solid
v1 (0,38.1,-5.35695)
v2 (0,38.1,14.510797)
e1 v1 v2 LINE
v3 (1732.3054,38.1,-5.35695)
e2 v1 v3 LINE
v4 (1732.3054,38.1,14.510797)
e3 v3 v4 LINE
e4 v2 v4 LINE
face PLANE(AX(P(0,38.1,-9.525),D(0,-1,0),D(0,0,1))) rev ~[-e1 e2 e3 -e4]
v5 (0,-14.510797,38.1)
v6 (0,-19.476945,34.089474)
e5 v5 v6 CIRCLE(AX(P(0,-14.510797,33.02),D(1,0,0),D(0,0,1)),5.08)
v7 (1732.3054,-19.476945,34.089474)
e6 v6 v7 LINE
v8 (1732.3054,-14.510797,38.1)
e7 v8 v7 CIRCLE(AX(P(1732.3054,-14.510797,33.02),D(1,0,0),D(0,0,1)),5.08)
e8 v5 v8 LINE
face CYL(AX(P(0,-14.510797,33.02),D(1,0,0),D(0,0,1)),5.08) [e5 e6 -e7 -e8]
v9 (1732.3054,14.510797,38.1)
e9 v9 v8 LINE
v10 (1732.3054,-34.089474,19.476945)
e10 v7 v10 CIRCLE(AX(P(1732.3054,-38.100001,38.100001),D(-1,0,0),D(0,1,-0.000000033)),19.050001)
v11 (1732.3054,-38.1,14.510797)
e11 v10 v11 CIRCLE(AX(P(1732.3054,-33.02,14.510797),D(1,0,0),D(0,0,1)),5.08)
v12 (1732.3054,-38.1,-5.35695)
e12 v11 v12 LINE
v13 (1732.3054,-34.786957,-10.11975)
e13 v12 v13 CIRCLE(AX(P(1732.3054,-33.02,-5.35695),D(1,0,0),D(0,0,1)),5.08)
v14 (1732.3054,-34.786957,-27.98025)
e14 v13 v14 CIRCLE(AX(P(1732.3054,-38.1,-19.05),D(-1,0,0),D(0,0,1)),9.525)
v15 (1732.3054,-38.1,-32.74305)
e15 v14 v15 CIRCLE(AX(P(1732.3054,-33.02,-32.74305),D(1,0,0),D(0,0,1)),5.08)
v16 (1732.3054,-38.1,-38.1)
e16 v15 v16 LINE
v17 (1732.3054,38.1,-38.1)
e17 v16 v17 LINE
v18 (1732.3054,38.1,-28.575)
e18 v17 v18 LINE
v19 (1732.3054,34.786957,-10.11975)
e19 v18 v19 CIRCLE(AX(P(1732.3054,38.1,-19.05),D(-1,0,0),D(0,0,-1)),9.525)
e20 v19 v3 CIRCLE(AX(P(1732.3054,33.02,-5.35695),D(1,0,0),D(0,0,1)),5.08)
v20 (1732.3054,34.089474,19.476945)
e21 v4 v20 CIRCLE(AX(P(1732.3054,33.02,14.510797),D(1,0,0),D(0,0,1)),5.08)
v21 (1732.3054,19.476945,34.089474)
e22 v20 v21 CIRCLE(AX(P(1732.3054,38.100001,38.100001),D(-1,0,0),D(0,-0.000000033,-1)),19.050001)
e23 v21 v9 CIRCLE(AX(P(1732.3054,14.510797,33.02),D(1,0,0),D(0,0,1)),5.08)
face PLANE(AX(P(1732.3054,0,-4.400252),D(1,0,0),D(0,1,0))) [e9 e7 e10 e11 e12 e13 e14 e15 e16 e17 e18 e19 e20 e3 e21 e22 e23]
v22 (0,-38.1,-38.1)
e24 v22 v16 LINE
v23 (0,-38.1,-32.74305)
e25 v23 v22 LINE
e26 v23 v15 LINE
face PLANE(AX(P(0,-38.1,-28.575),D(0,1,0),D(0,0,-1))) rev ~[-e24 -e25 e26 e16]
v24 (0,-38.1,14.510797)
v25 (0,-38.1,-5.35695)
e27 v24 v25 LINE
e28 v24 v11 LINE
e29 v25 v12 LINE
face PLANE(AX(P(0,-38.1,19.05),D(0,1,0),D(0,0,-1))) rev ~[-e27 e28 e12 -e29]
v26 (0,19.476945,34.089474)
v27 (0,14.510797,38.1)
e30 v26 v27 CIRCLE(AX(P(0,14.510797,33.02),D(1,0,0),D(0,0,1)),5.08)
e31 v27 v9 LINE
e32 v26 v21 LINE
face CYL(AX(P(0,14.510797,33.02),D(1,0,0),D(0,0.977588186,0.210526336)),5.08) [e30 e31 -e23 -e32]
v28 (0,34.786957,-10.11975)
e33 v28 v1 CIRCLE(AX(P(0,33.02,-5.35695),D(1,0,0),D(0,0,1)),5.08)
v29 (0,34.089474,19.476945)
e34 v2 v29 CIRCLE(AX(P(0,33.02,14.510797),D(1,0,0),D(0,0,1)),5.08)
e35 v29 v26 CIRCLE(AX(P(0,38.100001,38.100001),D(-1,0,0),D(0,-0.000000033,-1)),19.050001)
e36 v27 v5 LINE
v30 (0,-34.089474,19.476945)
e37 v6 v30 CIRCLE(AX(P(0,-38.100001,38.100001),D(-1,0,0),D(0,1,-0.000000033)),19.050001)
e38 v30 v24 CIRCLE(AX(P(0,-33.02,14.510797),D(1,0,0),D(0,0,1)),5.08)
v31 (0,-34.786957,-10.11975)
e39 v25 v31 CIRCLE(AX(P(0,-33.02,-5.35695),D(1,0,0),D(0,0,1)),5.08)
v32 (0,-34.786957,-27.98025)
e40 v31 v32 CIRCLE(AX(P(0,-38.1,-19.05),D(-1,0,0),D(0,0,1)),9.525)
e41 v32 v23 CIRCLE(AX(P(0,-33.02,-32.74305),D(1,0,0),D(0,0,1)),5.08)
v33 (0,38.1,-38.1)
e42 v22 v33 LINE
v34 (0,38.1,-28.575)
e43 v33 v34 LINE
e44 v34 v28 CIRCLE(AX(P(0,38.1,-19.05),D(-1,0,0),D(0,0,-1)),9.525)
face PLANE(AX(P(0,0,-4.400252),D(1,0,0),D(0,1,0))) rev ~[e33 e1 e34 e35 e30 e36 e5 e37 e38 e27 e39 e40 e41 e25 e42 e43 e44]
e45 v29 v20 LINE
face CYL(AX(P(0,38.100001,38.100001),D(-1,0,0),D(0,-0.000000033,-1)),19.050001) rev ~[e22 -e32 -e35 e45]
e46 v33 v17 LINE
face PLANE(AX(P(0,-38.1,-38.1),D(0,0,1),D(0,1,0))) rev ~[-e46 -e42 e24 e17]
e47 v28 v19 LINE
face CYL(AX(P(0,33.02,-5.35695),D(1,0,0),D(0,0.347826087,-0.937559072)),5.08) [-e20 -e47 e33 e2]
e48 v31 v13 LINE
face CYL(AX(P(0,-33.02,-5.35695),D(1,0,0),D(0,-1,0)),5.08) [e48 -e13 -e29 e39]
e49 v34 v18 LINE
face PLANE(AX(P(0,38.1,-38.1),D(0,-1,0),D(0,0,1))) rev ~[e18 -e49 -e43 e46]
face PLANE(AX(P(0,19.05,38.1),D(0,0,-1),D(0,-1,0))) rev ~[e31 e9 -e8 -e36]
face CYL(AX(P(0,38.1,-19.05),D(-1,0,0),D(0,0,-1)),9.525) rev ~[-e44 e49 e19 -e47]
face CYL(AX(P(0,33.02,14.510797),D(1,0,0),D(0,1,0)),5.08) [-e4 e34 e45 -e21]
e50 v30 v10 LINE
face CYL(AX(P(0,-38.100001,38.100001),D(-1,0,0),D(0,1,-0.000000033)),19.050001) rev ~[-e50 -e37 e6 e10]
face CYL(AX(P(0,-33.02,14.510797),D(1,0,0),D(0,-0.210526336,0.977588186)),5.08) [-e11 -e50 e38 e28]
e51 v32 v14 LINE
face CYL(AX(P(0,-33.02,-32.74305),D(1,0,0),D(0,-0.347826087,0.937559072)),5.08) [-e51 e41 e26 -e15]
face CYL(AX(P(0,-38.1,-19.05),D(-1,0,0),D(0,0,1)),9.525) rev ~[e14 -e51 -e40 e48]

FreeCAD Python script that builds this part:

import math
import FreeCAD as App
import Part
import Sketcher

V = App.Vector
Q = App.Units.Quantity


def edges_at(feature, points):
    """Names of the edges that pass closest to the given points."""
    edges = feature.Shape.Edges
    near = lambda p: min(range(len(edges)), key=lambda i: edges[i].distToShape(Part.Vertex(*p))[0])
    return sorted({f"Edge{near(p) + 1}" for p in points})

doc = App.newDocument("Part")
body = doc.addObject("PartDesign::Body", "Body")

# Sketch on YZ plane
sketch1 = body.newObject("Sketcher::SketchObject", "Sketch")
sketch1.AttachmentSupport = (doc.getObject("YZ_Plane"), [""])
sketch1.MapMode = "FlatFace"
sketch1.addGeometry(Part.LineSegment(V(-38, -38, 0), V(38, -38, 0)), False)
sketch1.addGeometry(Part.LineSegment(V(38, -38, 0), V(38, -29, 0)), False)
sketch1.addGeometry(Part.ArcOfCircle(Part.Circle(V(38, -19, 0), V(0, 0, 1), 10), math.radians(90), math.radians(270)), False)
sketch1.addGeometry(Part.LineSegment(V(38, -10, 0), V(38, 19, 0)), False)
sketch1.addGeometry(Part.ArcOfCircle(Part.Circle(V(38, 38, 0), V(0, 0, 1), 19), math.radians(-180), math.radians(-90)), False)
sketch1.addGeometry(Part.LineSegment(V(19, 38, 0), V(-19, 38, 0)), False)
sketch1.addGeometry(Part.ArcOfCircle(Part.Circle(V(-38, 38, 0), V(0, 0, 1), 19), math.radians(-90), math.radians(0)), False)
sketch1.addGeometry(Part.LineSegment(V(-38, 19, 0), V(-38, -10, 0)), False)
sketch1.addGeometry(Part.ArcOfCircle(Part.Circle(V(-38, -19, 0), V(0, 0, 1), 10), math.radians(-90), math.radians(90)), False)
sketch1.addGeometry(Part.LineSegment(V(-38, -29, 0), V(-38, -38, 0)), False)
sketch1.addConstraint(Sketcher.Constraint("Coincident", 0, 2, 1, 1))
sketch1.addConstraint(Sketcher.Constraint("Coincident", 1, 2, 2, 2))
sketch1.addConstraint(Sketcher.Constraint("Coincident", 2, 1, 3, 1))
sketch1.addConstraint(Sketcher.Constraint("Coincident", 3, 2, 4, 2))
sketch1.addConstraint(Sketcher.Constraint("Coincident", 4, 1, 5, 1))
sketch1.addConstraint(Sketcher.Constraint("Coincident", 5, 2, 6, 2))
sketch1.addConstraint(Sketcher.Constraint("Coincident", 6, 1, 7, 1))
sketch1.addConstraint(Sketcher.Constraint("Coincident", 7, 2, 8, 2))
sketch1.addConstraint(Sketcher.Constraint("Coincident", 8, 1, 9, 1))
sketch1.addConstraint(Sketcher.Constraint("Coincident", 9, 2, 0, 1))
sketch1.addConstraint(Sketcher.Constraint("Horizontal", 0))
sketch1.addConstraint(Sketcher.Constraint("Vertical", 1))
sketch1.addConstraint(Sketcher.Constraint("Vertical", 3))
sketch1.addConstraint(Sketcher.Constraint("Horizontal", 5))
sketch1.addConstraint(Sketcher.Constraint("Vertical", 7))
sketch1.addConstraint(Sketcher.Constraint("Vertical", 9))
sketch1.addConstraint(Sketcher.Constraint("Equal", 4, 6))
sketch1.addConstraint(Sketcher.Constraint("Equal", 2, 8))
sketch1.addConstraint(Sketcher.Constraint("Symmetric", 4, 3, 6, 3, -2))
sketch1.addConstraint(Sketcher.Constraint("Symmetric", 2, 3, 8, 3, -2))
sketch1.addConstraint(Sketcher.Constraint("Horizontal", 6, 3, 4, 1))
sketch1.addConstraint(Sketcher.Constraint("Vertical", 2, 3, 4, 3))
sketch1.addConstraint(Sketcher.Constraint("Vertical", 4, 3, 0, 2))
sketch1.addConstraint(Sketcher.Constraint("Vertical", 1, 2, 2, 1))
sketch1.addConstraint(Sketcher.Constraint("Vertical", 8, 3, 6, 1))
sketch1.addConstraint(Sketcher.Constraint("Vertical", 7, 2, 8, 1))
sketch1.addConstraint(Sketcher.Constraint("DistanceX", 0, 1, 0, 2, Q("3 in")))
sketch1.addConstraint(Sketcher.Constraint("Radius", 4, Q("0.75 in")))
sketch1.addConstraint(Sketcher.Constraint("Radius", 2, Q("0.375 in")))
sketch1.addConstraint(Sketcher.Constraint("DistanceY", 0, 2, 4, 3, Q("3 in")))
sketch1.addConstraint(Sketcher.Constraint("DistanceY", -1, 1, 4, 3, Q("1.5 in")))
sketch1.addConstraint(Sketcher.Constraint("DistanceY", 2, 3, 3, 2, Q("1.5 in")))
pad1 = body.newObject("PartDesign::Pad", "Pad")
pad1.Profile = sketch1
pad1.Length = Q("68.201 in")
doc.recompute()

fillet = body.newObject("PartDesign::Fillet", "Fillet")
fillet.Base = (pad1, edges_at(pad1, [
    (866.153, -19.05, 38.1),
    (866.153, 38.1, 19.05),
    (866.153, -38.1, 19.05),
    (866.153, -38.1, -9.525),
    (866.153, -38.1, -28.575),
    (866.153, 38.1, -9.525),
    (866.153, 19.05, 38.1),
]))
fillet.Radius = Q("0.2 in")

doc.recompute()
